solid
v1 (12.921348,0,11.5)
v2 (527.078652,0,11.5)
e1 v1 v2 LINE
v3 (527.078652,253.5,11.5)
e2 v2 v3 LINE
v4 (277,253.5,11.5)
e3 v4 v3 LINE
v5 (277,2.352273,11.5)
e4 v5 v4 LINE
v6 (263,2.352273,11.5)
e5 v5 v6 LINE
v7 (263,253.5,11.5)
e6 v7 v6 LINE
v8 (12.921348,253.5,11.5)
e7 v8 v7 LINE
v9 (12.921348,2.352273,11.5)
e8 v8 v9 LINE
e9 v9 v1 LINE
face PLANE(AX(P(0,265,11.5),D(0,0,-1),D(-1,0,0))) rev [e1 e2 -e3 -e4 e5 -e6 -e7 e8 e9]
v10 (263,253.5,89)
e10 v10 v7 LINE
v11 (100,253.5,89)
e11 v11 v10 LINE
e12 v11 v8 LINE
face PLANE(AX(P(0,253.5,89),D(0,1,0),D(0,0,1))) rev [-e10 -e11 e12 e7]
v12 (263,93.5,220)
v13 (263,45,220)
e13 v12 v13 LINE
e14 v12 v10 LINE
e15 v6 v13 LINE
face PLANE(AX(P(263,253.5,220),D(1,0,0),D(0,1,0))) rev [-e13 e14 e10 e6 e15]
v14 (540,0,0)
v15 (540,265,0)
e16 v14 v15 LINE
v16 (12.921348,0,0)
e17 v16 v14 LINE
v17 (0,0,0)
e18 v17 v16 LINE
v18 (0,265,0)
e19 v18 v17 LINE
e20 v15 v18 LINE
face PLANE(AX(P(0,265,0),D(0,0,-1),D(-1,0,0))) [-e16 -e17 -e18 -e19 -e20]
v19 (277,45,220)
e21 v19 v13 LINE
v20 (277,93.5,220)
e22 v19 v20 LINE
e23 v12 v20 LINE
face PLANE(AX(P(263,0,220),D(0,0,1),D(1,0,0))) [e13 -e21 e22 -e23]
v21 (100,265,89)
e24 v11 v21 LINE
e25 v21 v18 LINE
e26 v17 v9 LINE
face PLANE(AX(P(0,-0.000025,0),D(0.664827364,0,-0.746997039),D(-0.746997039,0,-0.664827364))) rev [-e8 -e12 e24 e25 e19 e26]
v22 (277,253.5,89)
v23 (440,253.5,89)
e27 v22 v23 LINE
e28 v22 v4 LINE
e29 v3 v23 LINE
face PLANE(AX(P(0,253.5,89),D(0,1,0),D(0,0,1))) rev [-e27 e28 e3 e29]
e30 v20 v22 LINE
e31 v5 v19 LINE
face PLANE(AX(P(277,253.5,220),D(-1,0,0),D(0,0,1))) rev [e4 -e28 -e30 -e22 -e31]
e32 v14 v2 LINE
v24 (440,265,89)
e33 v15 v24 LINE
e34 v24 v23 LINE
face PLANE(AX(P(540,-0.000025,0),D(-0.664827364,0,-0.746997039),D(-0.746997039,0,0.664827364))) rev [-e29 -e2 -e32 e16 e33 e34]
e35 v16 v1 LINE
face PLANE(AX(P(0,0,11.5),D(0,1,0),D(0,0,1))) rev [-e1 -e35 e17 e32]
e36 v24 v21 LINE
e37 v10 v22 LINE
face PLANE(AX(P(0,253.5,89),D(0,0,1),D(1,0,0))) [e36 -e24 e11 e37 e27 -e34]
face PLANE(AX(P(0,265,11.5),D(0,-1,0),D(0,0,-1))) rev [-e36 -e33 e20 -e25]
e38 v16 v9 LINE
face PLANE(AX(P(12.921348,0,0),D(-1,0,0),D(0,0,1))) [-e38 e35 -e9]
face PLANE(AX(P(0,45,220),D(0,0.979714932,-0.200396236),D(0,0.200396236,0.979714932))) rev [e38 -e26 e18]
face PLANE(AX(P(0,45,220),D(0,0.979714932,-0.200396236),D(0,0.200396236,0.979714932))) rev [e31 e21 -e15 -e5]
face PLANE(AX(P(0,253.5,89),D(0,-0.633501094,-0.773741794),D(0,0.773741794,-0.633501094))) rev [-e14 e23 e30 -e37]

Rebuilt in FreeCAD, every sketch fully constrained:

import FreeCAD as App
import Part
import Sketcher
from FreeCAD import Vector
Q = App.Units.Quantity


def add_polygon(sketch, points):
    """Adds a closed chain of lines whose ends are joined by coincident constraints."""
    first, n = sketch.GeometryCount, len(points)
    for a, b in zip(points, points[1:] + points[:1]):
        sketch.addGeometry(Part.LineSegment(App.Vector(*a, 0), App.Vector(*b, 0)), False)
    for i in range(n):
        sketch.addConstraint(Sketcher.Constraint("Coincident", first + i, 2, first + (i + 1) % n, 1))

doc = App.newDocument("Part")
body = doc.addObject("PartDesign::Body", "Body")

# Sketch on XY plane
sketch1 = body.newObject("Sketcher::SketchObject", "Sketch")
sketch1.AttachmentSupport = (doc.getObject("XY_Plane"), [""])
sketch1.MapMode = "FlatFace"
add_polygon(sketch1, [(0, 265), (0, 0), (540, 0), (540, 265)])  # lines 0-3
sketch1.addGeometry(Part.Circle(Vector(41, 52, 0), Vector(0, 0, 1), 13), False)  # 4
sketch1.addGeometry(Part.Circle(Vector(230, 41, 0), Vector(0, 0, 1), 13), False)  # 5
sketch1.addGeometry(Part.Circle(Vector(310, 41, 0), Vector(0, 0, 1), 13), False)  # 6
sketch1.addGeometry(Part.Circle(Vector(499, 52, 0), Vector(0, 0, 1), 13), False)  # 7
sketch1.addGeometry(Part.Circle(Vector(138, 92, 0), Vector(0, 0, 1), 13), False)  # 8
sketch1.addGeometry(Part.Circle(Vector(97, 108, 0), Vector(0, 0, 1), 13), False)  # 9
sketch1.addGeometry(Part.Circle(Vector(230, 121, 0), Vector(0, 0, 1), 13), False)  # 10
sketch1.addGeometry(Part.Circle(Vector(402, 92, 0), Vector(0, 0, 1), 13), False)  # 11
sketch1.addGeometry(Part.Circle(Vector(310, 121, 0), Vector(0, 0, 1), 13), False)  # 12
sketch1.addGeometry(Part.Circle(Vector(443, 108, 0), Vector(0, 0, 1), 13), False)  # 13
sketch1.addConstraint([
    Sketcher.Constraint("Vertical", 0),
    Sketcher.Constraint("Horizontal", 1),
    Sketcher.Constraint("Vertical", 2),
    Sketcher.Constraint("Horizontal", 3),
    Sketcher.Constraint("Coincident", 0, 2, -1, 1),
    Sketcher.Constraint("Equal", 4, 5),
    Sketcher.Constraint("Equal", 5, 6),
    Sketcher.Constraint("Equal", 6, 7),
    Sketcher.Constraint("Equal", 7, 8),
    Sketcher.Constraint("Equal", 8, 9),
    Sketcher.Constraint("Equal", 9, 10),
    Sketcher.Constraint("Equal", 10, 11),
    Sketcher.Constraint("Equal", 11, 12),
    Sketcher.Constraint("Equal", 12, 13),
    Sketcher.Constraint("Horizontal", 5, 3, 6, 3),
    Sketcher.Constraint("Horizontal", 4, 3, 7, 3),
    Sketcher.Constraint("Horizontal", 8, 3, 11, 3),
    Sketcher.Constraint("Horizontal", 10, 3, 12, 3),
    Sketcher.Constraint("Horizontal", 9, 3, 13, 3),
    Sketcher.Constraint("Vertical", 5, 3, 10, 3),
    Sketcher.Constraint("Vertical", 6, 3, 12, 3),
    Sketcher.Constraint("Diameter", 4, Q("26 mm")),
    Sketcher.Constraint("DistanceX", 1, 1, 1, 2, Q("540 mm")),
    Sketcher.Constraint("DistanceY", 0, 2, 0, 1, Q("265 mm")),
    Sketcher.Constraint("DistanceX", -1, 1, 5, 3, Q("230 mm")),
    Sketcher.Constraint("DistanceY", -1, 1, 5, 3, Q("41 mm")),
    Sketcher.Constraint("DistanceX", -1, 1, 6, 3, Q("310 mm")),
    Sketcher.Constraint("DistanceY", -1, 1, 10, 3, Q("121 mm")),
    Sketcher.Constraint("DistanceX", 4, 3, 8, 3, Q("96.931609 mm")),
    Sketcher.Constraint("DistanceY", 4, 3, 8, 3, Q("40.364131 mm")),
    Sketcher.Constraint("DistanceY", 8, 3, 9, 3, Q("16.204411 mm")),
    Sketcher.Constraint("DistanceX", 9, 3, 7, 3, Q("401.636652 mm")),
    Sketcher.Constraint("DistanceX", 11, 3, 7, 3, Q("96.931609 mm")),
    Sketcher.Constraint("DistanceX", -1, 1, 4, 3, Q("40.897403 mm")),
    Sketcher.Constraint("DistanceY", -1, 1, 4, 3, Q("51.897403 mm")),
    Sketcher.Constraint("DistanceX", -1, 1, 7, 3, Q("499.102597 mm")),
    Sketcher.Constraint("DistanceX", -1, 1, 13, 3, Q("442.534055 mm")),
])
pad1 = body.newObject("PartDesign::Pad", "Pad")
pad1.Profile = sketch1
pad1.Length = 11.5

# Sketch on XY plane
sketch2 = body.newObject("Sketcher::SketchObject", "Sketch001")
sketch2.AttachmentSupport = (doc.getObject("XY_Plane"), [""])
sketch2.MapMode = "FlatFace"
sketch2.AttachmentOffset = App.Placement(Vector(0, 0, 11.5), App.Rotation())
add_polygon(sketch2, [(0, 265), (0, 254), (540, 254), (540, 265)])  # lines 0-3
sketch2.addConstraint([
    Sketcher.Constraint("Vertical", 0),
    Sketcher.Constraint("Horizontal", 1),
    Sketcher.Constraint("Vertical", 2),
    Sketcher.Constraint("Horizontal", 3),
    Sketcher.Constraint("PointOnObject", 0, 2, -2),
    Sketcher.Constraint("DistanceX", 1, 1, 1, 2, Q("540 mm")),
    Sketcher.Constraint("DistanceY", 0, 2, 0, 1, Q("11.5 mm")),
    Sketcher.Constraint("DistanceY", -1, 1, 2, 2, Q("265 mm")),
])
pad2 = body.newObject("PartDesign::Pad", "Pad001")
pad2.Profile = sketch2
pad2.Length = 77.5

# Sketch on XZ plane
sketch3 = body.newObject("Sketcher::SketchObject", "Sketch002")
sketch3.AttachmentSupport = (doc.getObject("XZ_Plane"), [""])
sketch3.MapMode = "FlatFace"
sketch3.AttachmentOffset = App.Placement(Vector(0, 0, -265), App.Rotation())
add_polygon(sketch3, [(100, 89), (0, 0), (0, 89)])  # lines 0-2
add_polygon(sketch3, [(540, 0), (440, 89), (540, 89)])  # lines 3-5
sketch3.addConstraint([
    Sketcher.Constraint("Vertical", 1),
    Sketcher.Constraint("Horizontal", 2),
    Sketcher.Constraint("Horizontal", 4),
    Sketcher.Constraint("Vertical", 5),
    Sketcher.Constraint("Coincident", 0, 2, -1, 1),
    Sketcher.Constraint("PointOnObject", 5, 2, -1),
    Sketcher.Constraint("Horizontal", 2, 2, 3, 2),
    Sketcher.Constraint("Equal", 2, 4),
    Sketcher.Constraint("DistanceX", 2, 1, 2, 2, Q("100 mm")),
    Sketcher.Constraint("DistanceY", 1, 1, 1, 2, Q("89 mm")),
    Sketcher.Constraint("DistanceX", -1, 1, 3, 2, Q("440 mm")),
])
pocket1 = body.newObject("PartDesign::Pocket", "Pocket")
pocket1.Profile = sketch3
pocket1.Type = "ThroughAll"
pocket1.Reversed = True

# Sketch on XZ plane
sketch4 = body.newObject("Sketcher::SketchObject", "Sketch003")
sketch4.AttachmentSupport = (doc.getObject("XZ_Plane"), [""])
sketch4.MapMode = "FlatFace"
sketch4.AttachmentOffset = App.Placement(Vector(0, 0, -265), App.Rotation())
sketch4.addGeometry([
    Part.Circle(Vector(210, 50, 0), Vector(0, 0, 1), 13),
    Part.Circle(Vector(130, 50, 0), Vector(0, 0, 1), 13),
    Part.Circle(Vector(410, 50, 0), Vector(0, 0, 1), 13),
    Part.Circle(Vector(330, 50, 0), Vector(0, 0, 1), 13),
], False)
sketch4.addConstraint([
    Sketcher.Constraint("Equal", 0, 1),
    Sketcher.Constraint("Equal", 1, 2),
    Sketcher.Constraint("Equal", 2, 3),
    Sketcher.Constraint("Horizontal", 0, 3, 1, 3),
    Sketcher.Constraint("Horizontal", 1, 3, 2, 3),
    Sketcher.Constraint("Horizontal", 2, 3, 3, 3),
    Sketcher.Constraint("Diameter", 0, Q("26 mm")),
    Sketcher.Constraint("DistanceX", -1, 1, 0, 3, Q("210 mm")),
    Sketcher.Constraint("DistanceY", -1, 1, 0, 3, Q("50 mm")),
    Sketcher.Constraint("DistanceX", -1, 1, 1, 3, Q("130 mm")),
    Sketcher.Constraint("DistanceX", -1, 1, 2, 3, Q("410 mm")),
    Sketcher.Constraint("DistanceX", -1, 1, 3, 3, Q("330 mm")),
])
pocket2 = body.newObject("PartDesign::Pocket", "Pocket001")
pocket2.Profile = sketch4
pocket2.Type = "ThroughAll"
pocket2.Reversed = True

# Sketch on XY plane
sketch5 = body.newObject("Sketcher::SketchObject", "Sketch004")
sketch5.AttachmentSupport = (doc.getObject("XY_Plane"), [""])
sketch5.MapMode = "FlatFace"
sketch5.AttachmentOffset = App.Placement(Vector(0, 0, 11.5), App.Rotation())
add_polygon(sketch5, [(263, 254), (263, 0), (277, 0), (277, 254)])  # lines 0-3
sketch5.addConstraint([
    Sketcher.Constraint("Vertical", 0),
    Sketcher.Constraint("Horizontal", 1),
    Sketcher.Constraint("Vertical", 2),
    Sketcher.Constraint("Horizontal", 3),
    Sketcher.Constraint("PointOnObject", 0, 2, -1),
    Sketcher.Constraint("DistanceX", 1, 1, 1, 2, Q("14 mm")),
    Sketcher.Constraint("DistanceY", 0, 2, 0, 1, Q("253.5 mm")),
    Sketcher.Constraint("DistanceX", -1, 1, 0, 2, Q("263 mm")),
])
pad3 = body.newObject("PartDesign::Pad", "Pad002")
pad3.Profile = sketch5
pad3.Length = 208.5

# Sketch on YZ plane
sketch6 = body.newObject("Sketcher::SketchObject", "Sketch005")
sketch6.AttachmentSupport = (doc.getObject("YZ_Plane"), [""])
sketch6.MapMode = "FlatFace"
sketch6.AttachmentOffset = App.Placement(Vector(0, 0, 277), App.Rotation())
sketch6.addGeometry(Part.Circle(Vector(138, 116, 0), Vector(0, 0, 1), 13), False)  # 0
sketch6.addGeometry(Part.Circle(Vector(85, 175, 0), Vector(0, 0, 1), 13), False)  # 1
sketch6.addGeometry(Part.Circle(Vector(127, 68, 0), Vector(0, 0, 1), 13), False)  # 2
add_polygon(sketch6, [(94, 220), (254, 89), (254, 220)])  # lines 3-5
add_polygon(sketch6, [(0, 0), (45, 220), (0, 220)])  # lines 6-8
sketch6.addConstraint([
    Sketcher.Constraint("Vertical", 4),
    Sketcher.Constraint("Horizontal", 5),
    Sketcher.Constraint("Horizontal", 7),
    Sketcher.Constraint("Vertical", 8),
    Sketcher.Constraint("Coincident", 8, 2, -1, 1),
    Sketcher.Constraint("Equal", 0, 1),
    Sketcher.Constraint("Equal", 1, 2),
    Sketcher.Constraint("Horizontal", 5, 2, 6, 2),
    Sketcher.Constraint("Diameter", 0, Q("26 mm")),
    Sketcher.Constraint("DistanceX", 5, 2, 5, 1, Q("160 mm")),
    Sketcher.Constraint("DistanceX", 7, 2, 7, 1, Q("45 mm")),
    Sketcher.Constraint("DistanceY", 4, 1, 4, 2, Q("131 mm")),
    Sketcher.Constraint("DistanceY", 8, 2, 8, 1, Q("220 mm")),
    Sketcher.Constraint("DistanceX", -1, 1, 3, 2, Q("253.5 mm")),
    Sketcher.Constraint("DistanceY", -1, 1, 0, 3, Q("115.676148 mm")),
    Sketcher.Constraint("DistanceY", -1, 1, 1, 3, Q("175.462622 mm")),
    Sketcher.Constraint("DistanceX", 2, 3, 0, 3, Q("11.23084 mm")),
    Sketcher.Constraint("DistanceX", 1, 3, 2, 3, Q("41.925322 mm")),
    Sketcher.Constraint("DistanceX", -1, 1, 0, 3, Q("138.142815 mm")),
    Sketcher.Constraint("DistanceY", -1, 1, 2, 3, Q("68.377294 mm")),
])
pocket3 = body.newObject("PartDesign::Pocket", "Pocket002")
pocket3.Profile = sketch6
pocket3.Type = "ThroughAll"

# Sketch on YZ plane
sketch7 = body.newObject("Sketcher::SketchObject", "Sketch006")
sketch7.AttachmentSupport = (doc.getObject("YZ_Plane"), [""])
sketch7.MapMode = "FlatFace"
sketch7.AttachmentOffset = App.Placement(Vector(0, 0, 277), App.Rotation())
add_polygon(sketch7, [(94, 220), (45, 220), (2, 12), (254, 12), (254, 89)])  # lines 0-4
sketch7.addConstraint([
    Sketcher.Constraint("Horizontal", 0),
    Sketcher.Constraint("Horizontal", 2),
    Sketcher.Constraint("Vertical", 3),
    Sketcher.Constraint("DistanceX", 0, 2, 0, 1, Q("48.5 mm")),
    Sketcher.Constraint("DistanceY", 3, 1, 3, 2, Q("77.5 mm")),
    Sketcher.Constraint("DistanceX", -1, 1, 0, 2, Q("45 mm")),
    Sketcher.Constraint("DistanceY", -1, 1, 0, 2, Q("220 mm")),
    Sketcher.Constraint("DistanceY", -1, 1, 3, 2, Q("89 mm")),
    Sketcher.Constraint("DistanceX", 4, 2, 3, 2, Q("160 mm")),
    Sketcher.Constraint("DistanceX", 2, 1, 2, 2, Q("251.147727 mm")),
])
pad4 = body.newObject("PartDesign::Pad", "Pad003")
pad4.Profile = sketch7
pad4.Length = 14
pad4.Reversed = True

# Sketch on XY plane
sketch8 = body.newObject("Sketcher::SketchObject", "Sketch007")
sketch8.AttachmentSupport = (doc.getObject("XY_Plane"), [""])
sketch8.MapMode = "FlatFace"
sketch8.AttachmentOffset = App.Placement(Vector(0, 0, 11.5), App.Rotation())
add_polygon(sketch8, [(13, 254), (13, 0), (527, 0), (527, 254)])  # lines 0-3
sketch8.addConstraint([
    Sketcher.Constraint("Vertical", 0),
    Sketcher.Constraint("Horizontal", 1),
    Sketcher.Constraint("Vertical", 2),
    Sketcher.Constraint("Horizontal", 3),
    Sketcher.Constraint("PointOnObject", 0, 2, -1),
    Sketcher.Constraint("DistanceY", 0, 2, 0, 1, Q("253.5 mm")),
    Sketcher.Constraint("DistanceX", 1, 1, 1, 2, Q("514.157303 mm")),
    Sketcher.Constraint("DistanceX", -1, 1, 0, 2, Q("12.921348 mm")),
])
pad5 = body.newObject("PartDesign::Pad", "Pad004")
pad5.Profile = sketch8
pad5.Length = 11.5
pad5.Reversed = True

# Sketch on XZ plane
sketch9 = body.newObject("Sketcher::SketchObject", "Sketch008")
sketch9.AttachmentSupport = (doc.getObject("XZ_Plane"), [""])
sketch9.MapMode = "FlatFace"
sketch9.AttachmentOffset = App.Placement(Vector(0, 0, -265), App.Rotation())
add_polygon(sketch9, [(0, 0), (100, 89), (440, 89), (540, 0)])  # lines 0-3
sketch9.addConstraint([
    Sketcher.Constraint("Horizontal", 1),
    Sketcher.Constraint("Horizontal", 3),
    Sketcher.Constraint("Coincident", 3, 2, -1, 1),
    Sketcher.Constraint("Equal", 0, 2),
    Sketcher.Constraint("DistanceX", 1, 1, 1, 2, Q("340 mm")),
    Sketcher.Constraint("DistanceX", 3, 2, 3, 1, Q("540 mm")),
    Sketcher.Constraint("DistanceY", -1, 1, 0, 2, Q("89 mm")),
])
pad6 = body.newObject("PartDesign::Pad", "Pad005")
pad6.Profile = sketch9
pad6.Length = 11.5

doc.recompute()
